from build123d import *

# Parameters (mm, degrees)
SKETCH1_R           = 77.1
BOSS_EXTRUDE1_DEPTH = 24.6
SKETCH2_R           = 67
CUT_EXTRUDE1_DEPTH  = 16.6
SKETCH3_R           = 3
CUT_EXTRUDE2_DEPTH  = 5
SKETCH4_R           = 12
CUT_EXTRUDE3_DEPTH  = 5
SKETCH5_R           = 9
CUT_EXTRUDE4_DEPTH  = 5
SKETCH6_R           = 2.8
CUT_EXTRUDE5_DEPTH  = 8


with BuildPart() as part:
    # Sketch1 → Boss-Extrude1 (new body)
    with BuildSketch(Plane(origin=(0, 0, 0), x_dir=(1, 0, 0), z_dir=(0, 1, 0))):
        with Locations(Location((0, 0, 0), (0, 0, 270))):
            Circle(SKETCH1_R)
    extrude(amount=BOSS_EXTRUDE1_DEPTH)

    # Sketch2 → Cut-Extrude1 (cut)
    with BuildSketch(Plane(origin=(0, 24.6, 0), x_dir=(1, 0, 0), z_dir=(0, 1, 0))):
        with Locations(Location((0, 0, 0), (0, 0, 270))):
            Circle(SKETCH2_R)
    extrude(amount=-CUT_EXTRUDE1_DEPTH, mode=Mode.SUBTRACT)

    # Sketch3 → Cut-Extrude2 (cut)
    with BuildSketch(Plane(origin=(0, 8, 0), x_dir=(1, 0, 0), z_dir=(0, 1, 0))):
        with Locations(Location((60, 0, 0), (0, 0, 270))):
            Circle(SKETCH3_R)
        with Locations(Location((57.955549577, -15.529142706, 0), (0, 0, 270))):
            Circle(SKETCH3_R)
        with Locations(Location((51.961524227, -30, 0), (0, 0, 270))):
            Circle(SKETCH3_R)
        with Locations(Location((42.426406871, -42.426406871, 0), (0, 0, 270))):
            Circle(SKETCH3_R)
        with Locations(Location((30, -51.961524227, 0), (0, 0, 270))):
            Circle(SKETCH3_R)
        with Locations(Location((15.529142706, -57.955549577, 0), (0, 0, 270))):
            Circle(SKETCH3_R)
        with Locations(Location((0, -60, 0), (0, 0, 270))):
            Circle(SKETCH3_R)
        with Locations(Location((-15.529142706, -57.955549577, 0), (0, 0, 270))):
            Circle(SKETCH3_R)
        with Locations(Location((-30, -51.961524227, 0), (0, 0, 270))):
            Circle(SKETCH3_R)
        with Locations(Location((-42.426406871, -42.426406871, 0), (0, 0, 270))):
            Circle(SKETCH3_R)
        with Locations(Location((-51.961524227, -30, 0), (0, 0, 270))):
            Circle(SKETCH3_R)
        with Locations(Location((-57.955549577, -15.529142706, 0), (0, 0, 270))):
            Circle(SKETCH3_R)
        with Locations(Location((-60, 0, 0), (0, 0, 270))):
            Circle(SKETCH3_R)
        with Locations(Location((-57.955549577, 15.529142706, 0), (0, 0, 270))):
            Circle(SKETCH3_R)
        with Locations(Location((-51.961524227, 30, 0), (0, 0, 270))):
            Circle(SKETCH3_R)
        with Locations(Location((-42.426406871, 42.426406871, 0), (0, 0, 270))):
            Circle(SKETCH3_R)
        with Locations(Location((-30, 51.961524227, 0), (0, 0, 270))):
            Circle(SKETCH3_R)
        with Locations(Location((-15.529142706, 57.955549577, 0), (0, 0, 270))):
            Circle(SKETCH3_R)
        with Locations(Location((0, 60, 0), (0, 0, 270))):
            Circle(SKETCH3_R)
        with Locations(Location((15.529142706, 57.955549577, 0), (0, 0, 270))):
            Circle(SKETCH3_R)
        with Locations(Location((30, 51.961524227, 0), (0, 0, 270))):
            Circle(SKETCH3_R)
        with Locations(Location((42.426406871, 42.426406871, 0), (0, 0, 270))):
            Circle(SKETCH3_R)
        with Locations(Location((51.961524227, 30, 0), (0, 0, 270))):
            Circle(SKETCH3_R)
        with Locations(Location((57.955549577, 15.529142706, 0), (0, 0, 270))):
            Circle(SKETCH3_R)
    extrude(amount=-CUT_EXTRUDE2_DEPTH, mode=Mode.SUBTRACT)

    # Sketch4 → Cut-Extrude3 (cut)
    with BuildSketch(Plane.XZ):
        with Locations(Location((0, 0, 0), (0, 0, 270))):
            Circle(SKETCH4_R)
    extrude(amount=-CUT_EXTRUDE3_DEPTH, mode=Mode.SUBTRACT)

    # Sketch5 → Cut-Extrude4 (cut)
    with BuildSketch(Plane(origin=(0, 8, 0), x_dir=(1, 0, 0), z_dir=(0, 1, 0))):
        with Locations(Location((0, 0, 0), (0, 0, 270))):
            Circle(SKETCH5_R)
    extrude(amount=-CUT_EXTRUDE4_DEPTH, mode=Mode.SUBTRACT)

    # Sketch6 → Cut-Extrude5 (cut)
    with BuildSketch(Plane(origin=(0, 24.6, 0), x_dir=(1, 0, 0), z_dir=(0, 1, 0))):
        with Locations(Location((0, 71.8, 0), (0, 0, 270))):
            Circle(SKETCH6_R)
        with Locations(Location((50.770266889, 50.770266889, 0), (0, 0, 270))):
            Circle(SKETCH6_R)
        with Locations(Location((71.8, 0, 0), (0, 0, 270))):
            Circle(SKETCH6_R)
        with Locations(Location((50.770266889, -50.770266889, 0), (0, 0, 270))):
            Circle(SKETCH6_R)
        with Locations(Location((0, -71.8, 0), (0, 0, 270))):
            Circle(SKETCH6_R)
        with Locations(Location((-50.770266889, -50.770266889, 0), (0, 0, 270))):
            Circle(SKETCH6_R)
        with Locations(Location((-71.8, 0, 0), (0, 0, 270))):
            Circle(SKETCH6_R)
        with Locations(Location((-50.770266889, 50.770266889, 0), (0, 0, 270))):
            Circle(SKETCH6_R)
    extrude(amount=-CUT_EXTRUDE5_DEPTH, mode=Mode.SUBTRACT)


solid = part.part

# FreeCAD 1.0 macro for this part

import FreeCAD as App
import Part
import Sketcher
from FreeCAD import Vector

doc = App.newDocument("Part")
body = doc.addObject("PartDesign::Body", "Body")

sketch1 = body.newObject("Sketcher::SketchObject", "Sketch")
sketch1.AttachmentSupport = (doc.getObject("XZ_Plane"), [""])
sketch1.MapMode = "FlatFace"
sketch1.addGeometry(Part.Circle(Vector(0, 0, 0), Vector(0, 0, 1), 77.1), False)
sketch1.addConstraint(Sketcher.Constraint("Coincident", 0, 3, -1, 1))
sketch1.addConstraint(Sketcher.Constraint("Diameter", 0, 154.2))
pad1 = body.newObject("PartDesign::Pad", "Pad")
pad1.Profile = sketch1
pad1.Length = 24.6
pad1.Reversed = True

sketch2 = body.newObject("Sketcher::SketchObject", "Sketch001")
sketch2.AttachmentSupport = (doc.getObject("XZ_Plane"), [""])
sketch2.MapMode = "FlatFace"
sketch2.AttachmentOffset = App.Placement(Vector(0, 0, -24.6), App.Rotation())
sketch2.addGeometry(Part.Circle(Vector(0, 0, 0), Vector(0, 0, 1), 67), False)
sketch2.addConstraint(Sketcher.Constraint("Coincident", 0, 3, -1, 1))
sketch2.addConstraint(Sketcher.Constraint("Diameter", 0, 134.0))
pocket1 = body.newObject("PartDesign::Pocket", "Pocket")
pocket1.Profile = sketch2
pocket1.Length = 16.6
pocket1.Reversed = True

sketch3 = body.newObject("Sketcher::SketchObject", "Sketch002")
sketch3.AttachmentSupport = (doc.getObject("XZ_Plane"), [""])
sketch3.MapMode = "FlatFace"
sketch3.AttachmentOffset = App.Placement(Vector(0, 0, -8), App.Rotation())
sketch3.addGeometry(Part.Circle(Vector(60, 0, 0), Vector(0, 0, 1), 3), False)
sketch3.addGeometry(Part.Circle(Vector(57.95555, 15.529143, 0), Vector(0, 0, 1), 3), False)
sketch3.addGeometry(Part.Circle(Vector(51.961524, 30, 0), Vector(0, 0, 1), 3), False)
sketch3.addGeometry(Part.Circle(Vector(42.426407, 42.426407, 0), Vector(0, 0, 1), 3), False)
sketch3.addGeometry(Part.Circle(Vector(30, 51.961524, 0), Vector(0, 0, 1), 3), False)
sketch3.addGeometry(Part.Circle(Vector(15.529143, 57.95555, 0), Vector(0, 0, 1), 3), False)
sketch3.addGeometry(Part.Circle(Vector(0, 60, 0), Vector(0, 0, 1), 3), False)
sketch3.addGeometry(Part.Circle(Vector(-15.529143, 57.95555, 0), Vector(0, 0, 1), 3), False)
sketch3.addGeometry(Part.Circle(Vector(-30, 51.961524, 0), Vector(0, 0, 1), 3), False)
sketch3.addGeometry(Part.Circle(Vector(-42.426407, 42.426407, 0), Vector(0, 0, 1), 3), False)
sketch3.addGeometry(Part.Circle(Vector(-51.961524, 30, 0), Vector(0, 0, 1), 3), False)
sketch3.addGeometry(Part.Circle(Vector(-57.95555, 15.529143, 0), Vector(0, 0, 1), 3), False)
sketch3.addGeometry(Part.Circle(Vector(-60, 0, 0), Vector(0, 0, 1), 3), False)
sketch3.addGeometry(Part.Circle(Vector(-57.95555, -15.529143, 0), Vector(0, 0, 1), 3), False)
sketch3.addGeometry(Part.Circle(Vector(-51.961524, -30, 0), Vector(0, 0, 1), 3), False)
sketch3.addGeometry(Part.Circle(Vector(-42.426407, -42.426407, 0), Vector(0, 0, 1), 3), False)
sketch3.addGeometry(Part.Circle(Vector(-30, -51.961524, 0), Vector(0, 0, 1), 3), False)
sketch3.addGeometry(Part.Circle(Vector(-15.529143, -57.95555, 0), Vector(0, 0, 1), 3), False)
sketch3.addGeometry(Part.Circle(Vector(0, -60, 0), Vector(0, 0, 1), 3), False)
sketch3.addGeometry(Part.Circle(Vector(15.529143, -57.95555, 0), Vector(0, 0, 1), 3), False)
sketch3.addGeometry(Part.Circle(Vector(30, -51.961524, 0), Vector(0, 0, 1), 3), False)
sketch3.addGeometry(Part.Circle(Vector(42.426407, -42.426407, 0), Vector(0, 0, 1), 3), False)
sketch3.addGeometry(Part.Circle(Vector(51.961524, -30, 0), Vector(0, 0, 1), 3), False)
sketch3.addGeometry(Part.Circle(Vector(57.95555, -15.529143, 0), Vector(0, 0, 1), 3), False)
sketch3.addConstraint(Sketcher.Constraint("Equal", 0, 1))
sketch3.addConstraint(Sketcher.Constraint("Equal", 1, 2))
sketch3.addConstraint(Sketcher.Constraint("Equal", 2, 3))
sketch3.addConstraint(Sketcher.Constraint("Equal", 3, 4))
sketch3.addConstraint(Sketcher.Constraint("Equal", 4, 5))
sketch3.addConstraint(Sketcher.Constraint("Equal", 5, 6))
sketch3.addConstraint(Sketcher.Constraint("Equal", 6, 7))
sketch3.addConstraint(Sketcher.Constraint("Equal", 7, 8))
sketch3.addConstraint(Sketcher.Constraint("Equal", 8, 9))
sketch3.addConstraint(Sketcher.Constraint("Equal", 9, 10))
sketch3.addConstraint(Sketcher.Constraint("Equal", 10, 11))
sketch3.addConstraint(Sketcher.Constraint("Equal", 11, 12))
sketch3.addConstraint(Sketcher.Constraint("Equal", 12, 13))
sketch3.addConstraint(Sketcher.Constraint("Equal", 13, 14))
sketch3.addConstraint(Sketcher.Constraint("Equal", 14, 15))
sketch3.addConstraint(Sketcher.Constraint("Equal", 15, 16))
sketch3.addConstraint(Sketcher.Constraint("Equal", 16, 17))
sketch3.addConstraint(Sketcher.Constraint("Equal", 17, 18))
sketch3.addConstraint(Sketcher.Constraint("Equal", 18, 19))
sketch3.addConstraint(Sketcher.Constraint("Equal", 19, 20))
sketch3.addConstraint(Sketcher.Constraint("Equal", 20, 21))
sketch3.addConstraint(Sketcher.Constraint("Equal", 21, 22))
sketch3.addConstraint(Sketcher.Constraint("Equal", 22, 23))
sketch3.addConstraint(Sketcher.Constraint("Symmetric", 0, 3, 12, 3, -1, 1))
sketch3.addConstraint(Sketcher.Constraint("Symmetric", 1, 3, 13, 3, -1, 1))
sketch3.addConstraint(Sketcher.Constraint("Symmetric", 2, 3, 14, 3, -1, 1))
sketch3.addConstraint(Sketcher.Constraint("Symmetric", 3, 3, 15, 3, -1, 1))
sketch3.addConstraint(Sketcher.Constraint("Symmetric", 4, 3, 16, 3, -1, 1))
sketch3.addConstraint(Sketcher.Constraint("Symmetric", 5, 3, 17, 3, -1, 1))
sketch3.addConstraint(Sketcher.Constraint("Symmetric", 6, 3, 18, 3, -1, 1))
sketch3.addConstraint(Sketcher.Constraint("Symmetric", 7, 3, 19, 3, -1, 1))
sketch3.addConstraint(Sketcher.Constraint("Symmetric", 8, 3, 20, 3, -1, 1))
sketch3.addConstraint(Sketcher.Constraint("Symmetric", 9, 3, 21, 3, -1, 1))
sketch3.addConstraint(Sketcher.Constraint("Symmetric", 10, 3, 22, 3, -1, 1))
sketch3.addConstraint(Sketcher.Constraint("Symmetric", 11, 3, 23, 3, -1, 1))
sketch3.addConstraint(Sketcher.Constraint("Symmetric", 5, 3, 7, 3, -2))
sketch3.addConstraint(Sketcher.Constraint("Symmetric", 4, 3, 8, 3, -2))
sketch3.addConstraint(Sketcher.Constraint("Symmetric", 3, 3, 9, 3, -2))
sketch3.addConstraint(Sketcher.Constraint("Symmetric", 2, 3, 10, 3, -2))
sketch3.addConstraint(Sketcher.Constraint("Symmetric", 1, 3, 11, 3, -2))
sketch3.addConstraint(Sketcher.Constraint("PointOnObject", 0, 3, -1))
sketch3.addConstraint(Sketcher.Constraint("PointOnObject", 6, 3, -2))
sketch3.addConstraint(Sketcher.Constraint("Diameter", 0, 6.0))
sketch3.addConstraint(Sketcher.Constraint("DistanceX", -1, 1, 0, 3, 60.0))
sketch3.addConstraint(Sketcher.Constraint("DistanceY", -1, 1, 2, 3, 30.0))
sketch3.addConstraint(Sketcher.Constraint("DistanceX", -1, 1, 4, 3, 30.0))
sketch3.addConstraint(Sketcher.Constraint("DistanceY", -1, 1, 6, 3, 60.0))
sketch3.addConstraint(Sketcher.Constraint("DistanceX", -1, 1, 1, 3, 57.95555))
sketch3.addConstraint(Sketcher.Constraint("DistanceY", -1, 1, 5, 3, 57.95555))
sketch3.addConstraint(Sketcher.Constraint("DistanceY", 1, 3, 4, 3, 36.432382))
sketch3.addConstraint(Sketcher.Constraint("DistanceX", 5, 3, 2, 3, 36.432382))
sketch3.addConstraint(Sketcher.Constraint("DistanceX", 7, 3, 3, 3, 57.95555))
sketch3.addConstraint(Sketcher.Constraint("DistanceY", 13, 3, 9, 3, 57.95555))
sketch3.addConstraint(Sketcher.Constraint("DistanceY", -1, 1, 1, 3, 15.529143))
sketch3.addConstraint(Sketcher.Constraint("DistanceX", -1, 1, 2, 3, 51.961524))
pocket2 = body.newObject("PartDesign::Pocket", "Pocket001")
pocket2.Profile = sketch3
pocket2.Length = 5
pocket2.Reversed = True

sketch4 = body.newObject("Sketcher::SketchObject", "Sketch003")
sketch4.AttachmentSupport = (doc.getObject("XZ_Plane"), [""])
sketch4.MapMode = "FlatFace"
sketch4.addGeometry(Part.Circle(Vector(0, 0, 0), Vector(0, 0, 1), 12), False)
sketch4.addConstraint(Sketcher.Constraint("Coincident", 0, 3, -1, 1))
sketch4.addConstraint(Sketcher.Constraint("Diameter", 0, 24.0))
pocket3 = body.newObject("PartDesign::Pocket", "Pocket002")
pocket3.Profile = sketch4
pocket3.Length = 5

sketch5 = body.newObject("Sketcher::SketchObject", "Sketch004")
sketch5.AttachmentSupport = (doc.getObject("XZ_Plane"), [""])
sketch5.MapMode = "FlatFace"
sketch5.AttachmentOffset = App.Placement(Vector(0, 0, -8), App.Rotation())
sketch5.addGeometry(Part.Circle(Vector(0, 0, 0), Vector(0, 0, 1), 9), False)
sketch5.addConstraint(Sketcher.Constraint("Coincident", 0, 3, -1, 1))
sketch5.addConstraint(Sketcher.Constraint("Diameter", 0, 18.0))
pocket4 = body.newObject("PartDesign::Pocket", "Pocket003")
pocket4.Profile = sketch5
pocket4.Length = 5
pocket4.Reversed = True

sketch6 = body.newObject("Sketcher::SketchObject", "Sketch005")
sketch6.AttachmentSupport = (doc.getObject("XZ_Plane"), [""])
sketch6.MapMode = "FlatFace"
sketch6.AttachmentOffset = App.Placement(Vector(0, 0, -24.6), App.Rotation())
sketch6.addGeometry(Part.Circle(Vector(0, -71.8, 0), Vector(0, 0, 1), 2.8), False)
sketch6.addGeometry(Part.Circle(Vector(50.770267, -50.770267, 0), Vector(0, 0, 1), 2.8), False)
sketch6.addGeometry(Part.Circle(Vector(71.8, 0, 0), Vector(0, 0, 1), 2.8), False)
sketch6.addGeometry(Part.Circle(Vector(50.770267, 50.770267, 0), Vector(0, 0, 1), 2.8), False)
sketch6.addGeometry(Part.Circle(Vector(0, 71.8, 0), Vector(0, 0, 1), 2.8), False)
sketch6.addGeometry(Part.Circle(Vector(-50.770267, 50.770267, 0), Vector(0, 0, 1), 2.8), False)
sketch6.addGeometry(Part.Circle(Vector(-71.8, 0, 0), Vector(0, 0, 1), 2.8), False)
sketch6.addGeometry(Part.Circle(Vector(-50.770267, -50.770267, 0), Vector(0, 0, 1), 2.8), False)
sketch6.addConstraint(Sketcher.Constraint("Equal", 0, 1))
sketch6.addConstraint(Sketcher.Constraint("Equal", 1, 2))
sketch6.addConstraint(Sketcher.Constraint("Equal", 2, 3))
sketch6.addConstraint(Sketcher.Constraint("Equal", 3, 4))
sketch6.addConstraint(Sketcher.Constraint("Equal", 4, 5))
sketch6.addConstraint(Sketcher.Constraint("Equal", 5, 6))
sketch6.addConstraint(Sketcher.Constraint("Equal", 6, 7))
sketch6.addConstraint(Sketcher.Constraint("Symmetric", 0, 3, 4, 3, -1, 1))
sketch6.addConstraint(Sketcher.Constraint("Symmetric", 1, 3, 5, 3, -1, 1))
sketch6.addConstraint(Sketcher.Constraint("Symmetric", 2, 3, 6, 3, -1, 1))
sketch6.addConstraint(Sketcher.Constraint("Symmetric", 3, 3, 7, 3, -1, 1))
sketch6.addConstraint(Sketcher.Constraint("Symmetric", 3, 3, 5, 3, -2))
sketch6.addConstraint(Sketcher.Constraint("PointOnObject", 0, 3, -2))
sketch6.addConstraint(Sketcher.Constraint("PointOnObject", 2, 3, -1))
sketch6.addConstraint(Sketcher.Constraint("Diameter", 0, 5.6))
sketch6.addConstraint(Sketcher.Constraint("DistanceY", 0, 3, -1, 1, 71.8))
sketch6.addConstraint(Sketcher.Constraint("DistanceX", -1, 1, 2, 3, 71.8))
sketch6.addConstraint(Sketcher.Constraint("DistanceX", -1, 1, 1, 3, 50.770267))
sketch6.addConstraint(Sketcher.Constraint("DistanceY", 1, 3, -1, 1, 50.770267))
pocket5 = body.newObject("PartDesign::Pocket", "Pocket004")
pocket5.Profile = sketch6
pocket5.Length = 8
pocket5.Reversed = True

doc.recompute()
